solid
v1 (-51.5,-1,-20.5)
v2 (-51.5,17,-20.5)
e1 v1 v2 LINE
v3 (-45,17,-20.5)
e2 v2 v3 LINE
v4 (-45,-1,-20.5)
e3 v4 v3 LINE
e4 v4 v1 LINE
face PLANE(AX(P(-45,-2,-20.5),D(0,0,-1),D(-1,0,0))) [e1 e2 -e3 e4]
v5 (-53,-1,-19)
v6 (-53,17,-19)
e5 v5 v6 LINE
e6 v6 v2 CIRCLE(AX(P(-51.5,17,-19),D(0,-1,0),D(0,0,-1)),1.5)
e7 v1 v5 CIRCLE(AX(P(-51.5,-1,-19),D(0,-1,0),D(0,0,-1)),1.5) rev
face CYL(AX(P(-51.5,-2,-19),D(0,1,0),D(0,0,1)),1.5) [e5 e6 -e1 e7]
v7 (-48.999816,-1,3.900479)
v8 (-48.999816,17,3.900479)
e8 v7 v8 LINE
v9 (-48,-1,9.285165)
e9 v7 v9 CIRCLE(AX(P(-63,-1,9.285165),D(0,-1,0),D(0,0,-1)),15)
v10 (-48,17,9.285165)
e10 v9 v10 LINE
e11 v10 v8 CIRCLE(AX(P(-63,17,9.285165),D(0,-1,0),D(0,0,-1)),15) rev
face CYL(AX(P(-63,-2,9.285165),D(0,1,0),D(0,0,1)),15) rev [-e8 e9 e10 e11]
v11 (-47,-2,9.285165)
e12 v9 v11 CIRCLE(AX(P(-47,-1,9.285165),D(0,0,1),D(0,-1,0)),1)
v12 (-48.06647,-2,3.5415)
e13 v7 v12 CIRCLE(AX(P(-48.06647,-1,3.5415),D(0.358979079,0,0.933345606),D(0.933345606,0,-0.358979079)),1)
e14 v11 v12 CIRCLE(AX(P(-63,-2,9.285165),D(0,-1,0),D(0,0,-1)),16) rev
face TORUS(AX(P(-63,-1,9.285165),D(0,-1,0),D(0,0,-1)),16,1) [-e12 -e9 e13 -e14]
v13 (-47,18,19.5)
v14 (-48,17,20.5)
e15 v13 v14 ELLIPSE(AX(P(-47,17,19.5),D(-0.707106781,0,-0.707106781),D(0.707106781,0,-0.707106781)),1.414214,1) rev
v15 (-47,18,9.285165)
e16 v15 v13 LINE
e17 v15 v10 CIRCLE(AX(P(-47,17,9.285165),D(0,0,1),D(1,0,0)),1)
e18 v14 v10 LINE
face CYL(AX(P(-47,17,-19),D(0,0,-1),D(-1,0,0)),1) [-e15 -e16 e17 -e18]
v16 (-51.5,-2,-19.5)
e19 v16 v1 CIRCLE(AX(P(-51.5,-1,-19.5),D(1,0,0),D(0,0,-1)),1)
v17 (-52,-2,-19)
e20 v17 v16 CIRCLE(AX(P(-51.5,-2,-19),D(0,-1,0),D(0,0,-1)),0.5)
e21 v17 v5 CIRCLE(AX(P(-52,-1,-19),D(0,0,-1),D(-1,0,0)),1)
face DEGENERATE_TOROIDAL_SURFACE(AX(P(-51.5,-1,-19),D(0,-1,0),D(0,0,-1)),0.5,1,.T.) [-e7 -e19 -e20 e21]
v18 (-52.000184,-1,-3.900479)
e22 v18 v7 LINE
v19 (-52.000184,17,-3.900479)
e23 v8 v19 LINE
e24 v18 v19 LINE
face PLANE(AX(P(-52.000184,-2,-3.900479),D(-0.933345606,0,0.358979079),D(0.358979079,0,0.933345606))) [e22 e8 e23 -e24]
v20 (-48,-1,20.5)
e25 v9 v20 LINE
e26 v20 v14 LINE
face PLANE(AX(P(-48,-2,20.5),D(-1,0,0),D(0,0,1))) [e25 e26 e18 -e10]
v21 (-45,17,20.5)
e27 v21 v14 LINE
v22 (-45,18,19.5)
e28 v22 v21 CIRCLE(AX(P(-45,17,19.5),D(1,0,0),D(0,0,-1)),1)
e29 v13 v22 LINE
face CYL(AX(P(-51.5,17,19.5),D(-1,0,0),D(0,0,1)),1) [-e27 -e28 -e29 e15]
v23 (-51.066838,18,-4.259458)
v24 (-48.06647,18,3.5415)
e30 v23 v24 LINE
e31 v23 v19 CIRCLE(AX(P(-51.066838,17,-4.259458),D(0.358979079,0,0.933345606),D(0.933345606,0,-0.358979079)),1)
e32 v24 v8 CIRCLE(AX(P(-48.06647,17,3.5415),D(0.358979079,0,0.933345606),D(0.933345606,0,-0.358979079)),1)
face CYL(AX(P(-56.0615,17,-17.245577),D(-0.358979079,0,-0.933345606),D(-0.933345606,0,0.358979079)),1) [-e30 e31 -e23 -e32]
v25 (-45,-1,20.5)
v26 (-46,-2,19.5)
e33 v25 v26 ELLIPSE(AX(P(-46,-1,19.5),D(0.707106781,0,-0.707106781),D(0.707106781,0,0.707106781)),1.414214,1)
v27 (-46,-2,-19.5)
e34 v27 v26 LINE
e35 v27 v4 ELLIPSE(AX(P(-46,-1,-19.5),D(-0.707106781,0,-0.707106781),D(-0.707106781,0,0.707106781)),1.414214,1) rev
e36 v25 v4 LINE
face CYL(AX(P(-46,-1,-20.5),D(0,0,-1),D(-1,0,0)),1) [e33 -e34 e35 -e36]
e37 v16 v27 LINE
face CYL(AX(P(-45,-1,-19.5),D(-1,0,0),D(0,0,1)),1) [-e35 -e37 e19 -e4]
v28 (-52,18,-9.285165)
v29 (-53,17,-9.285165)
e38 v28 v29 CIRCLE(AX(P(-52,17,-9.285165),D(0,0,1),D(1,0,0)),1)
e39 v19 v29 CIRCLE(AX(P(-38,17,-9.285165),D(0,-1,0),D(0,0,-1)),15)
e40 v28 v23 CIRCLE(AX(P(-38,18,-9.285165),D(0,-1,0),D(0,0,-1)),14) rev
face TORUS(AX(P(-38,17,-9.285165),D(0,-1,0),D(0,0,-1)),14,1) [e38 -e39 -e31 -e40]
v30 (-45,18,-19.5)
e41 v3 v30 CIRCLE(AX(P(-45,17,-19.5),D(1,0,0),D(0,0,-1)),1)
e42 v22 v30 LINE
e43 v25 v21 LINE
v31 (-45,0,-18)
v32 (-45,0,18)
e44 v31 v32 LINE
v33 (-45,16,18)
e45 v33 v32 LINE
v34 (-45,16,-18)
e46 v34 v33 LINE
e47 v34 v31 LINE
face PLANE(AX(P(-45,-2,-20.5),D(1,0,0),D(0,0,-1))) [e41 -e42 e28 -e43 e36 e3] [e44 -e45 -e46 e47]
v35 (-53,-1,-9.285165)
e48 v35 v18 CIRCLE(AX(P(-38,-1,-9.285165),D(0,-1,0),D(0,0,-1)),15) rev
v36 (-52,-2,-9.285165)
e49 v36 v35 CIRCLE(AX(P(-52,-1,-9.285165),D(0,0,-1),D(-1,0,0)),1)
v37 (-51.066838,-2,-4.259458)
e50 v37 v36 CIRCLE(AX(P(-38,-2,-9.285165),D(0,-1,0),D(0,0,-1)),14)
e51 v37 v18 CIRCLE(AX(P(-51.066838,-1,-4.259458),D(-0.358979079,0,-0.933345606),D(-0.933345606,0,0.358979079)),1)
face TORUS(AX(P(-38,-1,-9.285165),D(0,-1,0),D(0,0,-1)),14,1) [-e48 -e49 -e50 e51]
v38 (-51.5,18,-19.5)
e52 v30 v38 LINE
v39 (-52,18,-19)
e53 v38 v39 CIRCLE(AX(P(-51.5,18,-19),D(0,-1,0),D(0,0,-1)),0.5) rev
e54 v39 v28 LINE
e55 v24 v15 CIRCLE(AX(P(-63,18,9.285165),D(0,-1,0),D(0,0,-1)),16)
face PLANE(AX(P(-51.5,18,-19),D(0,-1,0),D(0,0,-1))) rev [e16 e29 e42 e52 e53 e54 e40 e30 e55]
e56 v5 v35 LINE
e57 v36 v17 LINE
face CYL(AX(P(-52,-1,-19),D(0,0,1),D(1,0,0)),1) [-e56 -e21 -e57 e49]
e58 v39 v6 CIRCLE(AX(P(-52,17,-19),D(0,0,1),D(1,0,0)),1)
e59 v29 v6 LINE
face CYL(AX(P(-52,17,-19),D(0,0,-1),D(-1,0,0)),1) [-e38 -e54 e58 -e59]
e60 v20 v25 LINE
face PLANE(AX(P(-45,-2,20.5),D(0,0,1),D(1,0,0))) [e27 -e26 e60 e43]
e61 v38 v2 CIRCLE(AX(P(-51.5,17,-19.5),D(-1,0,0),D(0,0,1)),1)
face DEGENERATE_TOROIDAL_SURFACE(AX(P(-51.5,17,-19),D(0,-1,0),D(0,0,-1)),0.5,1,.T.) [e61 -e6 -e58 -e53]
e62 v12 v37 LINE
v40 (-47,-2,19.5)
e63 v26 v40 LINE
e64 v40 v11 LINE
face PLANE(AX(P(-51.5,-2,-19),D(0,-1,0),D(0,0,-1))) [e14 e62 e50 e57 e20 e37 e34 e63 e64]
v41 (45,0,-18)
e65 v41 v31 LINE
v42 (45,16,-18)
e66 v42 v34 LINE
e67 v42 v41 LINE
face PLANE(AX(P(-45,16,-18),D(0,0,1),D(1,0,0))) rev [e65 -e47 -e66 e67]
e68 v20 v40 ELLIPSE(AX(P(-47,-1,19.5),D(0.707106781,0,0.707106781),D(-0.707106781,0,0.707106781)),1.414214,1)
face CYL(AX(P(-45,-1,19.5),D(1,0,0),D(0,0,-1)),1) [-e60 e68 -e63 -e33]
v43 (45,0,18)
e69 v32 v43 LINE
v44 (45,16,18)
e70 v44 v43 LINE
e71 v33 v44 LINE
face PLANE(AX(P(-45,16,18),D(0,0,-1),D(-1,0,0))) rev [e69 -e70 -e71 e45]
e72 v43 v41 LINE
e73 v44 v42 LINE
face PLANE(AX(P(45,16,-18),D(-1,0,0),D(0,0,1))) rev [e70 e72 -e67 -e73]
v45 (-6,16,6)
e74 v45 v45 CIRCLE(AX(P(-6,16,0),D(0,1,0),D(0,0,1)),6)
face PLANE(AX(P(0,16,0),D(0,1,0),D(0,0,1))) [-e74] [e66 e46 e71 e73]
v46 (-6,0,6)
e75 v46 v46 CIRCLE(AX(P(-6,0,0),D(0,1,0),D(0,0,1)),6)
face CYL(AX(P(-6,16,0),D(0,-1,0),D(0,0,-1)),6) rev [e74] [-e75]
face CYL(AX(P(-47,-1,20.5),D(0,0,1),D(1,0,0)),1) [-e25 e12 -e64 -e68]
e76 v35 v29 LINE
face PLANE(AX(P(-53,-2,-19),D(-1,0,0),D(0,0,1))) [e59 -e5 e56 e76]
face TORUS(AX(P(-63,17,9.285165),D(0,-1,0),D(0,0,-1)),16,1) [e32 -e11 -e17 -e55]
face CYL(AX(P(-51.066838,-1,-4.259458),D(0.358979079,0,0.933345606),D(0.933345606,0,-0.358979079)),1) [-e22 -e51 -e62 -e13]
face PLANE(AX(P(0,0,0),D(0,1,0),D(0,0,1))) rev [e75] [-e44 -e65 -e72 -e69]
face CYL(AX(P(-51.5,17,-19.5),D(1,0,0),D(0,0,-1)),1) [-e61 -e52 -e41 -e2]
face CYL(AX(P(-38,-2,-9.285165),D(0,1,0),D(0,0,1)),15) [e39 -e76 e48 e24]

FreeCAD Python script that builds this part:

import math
import FreeCAD as App
import Part
import Sketcher

V = App.Vector
Q = App.Units.Quantity


def edges_at(feature, points):
    """Names of the edges that pass closest to the given points."""
    edges = feature.Shape.Edges
    near = lambda p: min(range(len(edges)), key=lambda i: edges[i].distToShape(Part.Vertex(*p))[0])
    return sorted({f"Edge{near(p) + 1}" for p in points})

doc = App.newDocument("Part")
params = doc.addObject("Spreadsheet::Sheet", "Params")
for row, (alias, value) in enumerate([
    ("sketch1_diameter", "12 mm"),
    ("sketch1_width", "90 mm"),
    ("sketch1_height", "36 mm"),
    ("pad1_length", "16 mm"),
    ("sketch2_radius", "15 mm"),
    ("sketch2_radius2", "1.5 mm"),
    ("sketch2_width", "3 mm"),
    ("sketch2_height", "41 mm"),
    ("sketch2_width2", "6.5 mm"),
    ("pad2_length", "20 mm"),
    ("fillet_radius", "1 mm"),
    ("fillet2_radius", "1 mm"),
], start=1):
    params.set(f"A{row}", alias)
    params.set(f"B{row}", "=" + value)
    params.setAlias(f"B{row}", alias)

body = doc.addObject("PartDesign::Body", "Body")

sketch1 = doc.addObject("Sketcher::SketchObject", "Sketch")
body.addObject(sketch1)
sketch1.AttachmentSupport = (doc.XZ_Plane, [""])
sketch1.MapMode = "FlatFace"
sketch1.addGeometry(Part.LineSegment(V(-45, -18, 0), V(-45, 18, 0)), False)
sketch1.addGeometry(Part.LineSegment(V(-45, 18, 0), V(45, 18, 0)), False)
sketch1.addGeometry(Part.LineSegment(V(45, 18, 0), V(45, -18, 0)), False)
sketch1.addGeometry(Part.LineSegment(V(45, -18, 0), V(-45, -18, 0)), False)
sketch1.addGeometry(Part.Circle(V(-6, 0, 0), V(0, 0, 1), 6), False)
sketch1.addConstraint(Sketcher.Constraint("Coincident", 0, 2, 1, 1))
sketch1.addConstraint(Sketcher.Constraint("Coincident", 1, 2, 2, 1))
sketch1.addConstraint(Sketcher.Constraint("Coincident", 2, 2, 3, 1))
sketch1.addConstraint(Sketcher.Constraint("Coincident", 3, 2, 0, 1))
sketch1.addConstraint(Sketcher.Constraint("Vertical", 0))
sketch1.addConstraint(Sketcher.Constraint("Horizontal", 1))
sketch1.addConstraint(Sketcher.Constraint("Vertical", 2))
sketch1.addConstraint(Sketcher.Constraint("Horizontal", 3))
sketch1.addConstraint(Sketcher.Constraint("Symmetric", 0, 2, 2, 2, -1, 1))
sketch1.addConstraint(Sketcher.Constraint("PointOnObject", 4, 3, -1))
sketch1.addConstraint(Sketcher.Constraint("Diameter", 4, Q("12 mm")))
sketch1.addConstraint(Sketcher.Constraint("DistanceX", 1, 1, 1, 2, Q("90 mm")))
sketch1.addConstraint(Sketcher.Constraint("DistanceY", 0, 1, 0, 2, Q("36 mm")))
sketch1.addConstraint(Sketcher.Constraint("DistanceX", 4, 3, -1, 1, Q("6 mm")))
sketch1.setExpression("Constraints[10]", "Params.sketch1_diameter")
sketch1.setExpression("Constraints[11]", "Params.sketch1_width")
sketch1.setExpression("Constraints[12]", "Params.sketch1_height")
pad1 = doc.addObject("PartDesign::Pad", "Pad")
body.addObject(pad1)
pad1.Profile = sketch1
pad1.setExpression("Length", "Params.pad1_length")
pad1.Reversed = True

sketch2 = doc.addObject("Sketcher::SketchObject", "Sketch001")
body.addObject(sketch2)
sketch2.AttachmentSupport = (doc.XZ_Plane, [""])
sketch2.MapMode = "FlatFace"
sketch2.AttachmentOffset = App.Placement(V(0, 0, -18), App.Rotation())
sketch2.addGeometry(Part.LineSegment(V(-45, 20.5, 0), V(-45, -20.5, 0)), False)
sketch2.addGeometry(Part.LineSegment(V(-45, -20.5, 0), V(-51.5, -20.5, 0)), False)
sketch2.addGeometry(Part.ArcOfCircle(Part.Circle(V(-51.5, -19, 0), V(0, 0, 1), 1.5), math.radians(180), math.radians(270)), False)
sketch2.addGeometry(Part.LineSegment(V(-53, -19, 0), V(-53, -9.3, 0)), False)
sketch2.addGeometry(Part.ArcOfCircle(Part.Circle(V(-38, -9.3, 0), V(0, 0, 1), 15), math.radians(159), math.radians(180)), False)
sketch2.addGeometry(Part.LineSegment(V(-52, -3.9, 0), V(-49, 3.9, 0)), False)
sketch2.addGeometry(Part.ArcOfCircle(Part.Circle(V(-63, 9.3, 0), V(0, 0, 1), 15), math.radians(-21), math.radians(0)), False)
sketch2.addGeometry(Part.LineSegment(V(-48, 9.3, 0), V(-48, 20.5, 0)), False)
sketch2.addGeometry(Part.LineSegment(V(-48, 20.5, 0), V(-45, 20.5, 0)), False)
sketch2.addConstraint(Sketcher.Constraint("Coincident", 0, 2, 1, 1))
sketch2.addConstraint(Sketcher.Constraint("Tangent", 1, 2, 2, 2))
sketch2.addConstraint(Sketcher.Constraint("Tangent", 2, 1, 3, 1))
sketch2.addConstraint(Sketcher.Constraint("Tangent", 3, 2, 4, 2))
sketch2.addConstraint(Sketcher.Constraint("Tangent", 4, 1, 5, 1))
sketch2.addConstraint(Sketcher.Constraint("Tangent", 5, 2, 6, 1))
sketch2.addConstraint(Sketcher.Constraint("Tangent", 6, 2, 7, 1))
sketch2.addConstraint(Sketcher.Constraint("Coincident", 7, 2, 8, 1))
sketch2.addConstraint(Sketcher.Constraint("Coincident", 8, 2, 0, 1))
sketch2.addConstraint(Sketcher.Constraint("Vertical", 0))
sketch2.addConstraint(Sketcher.Constraint("Horizontal", 1))
sketch2.addConstraint(Sketcher.Constraint("Vertical", 3))
sketch2.addConstraint(Sketcher.Constraint("Vertical", 7))
sketch2.addConstraint(Sketcher.Constraint("Horizontal", 8))
sketch2.addConstraint(Sketcher.Constraint("Equal", 4, 6))
sketch2.addConstraint(Sketcher.Constraint("Radius", 4, Q("15 mm")))
sketch2.addConstraint(Sketcher.Constraint("Radius", 2, Q("1.5 mm")))
sketch2.addConstraint(Sketcher.Constraint("DistanceX", 8, 1, 8, 2, Q("3 mm")))
sketch2.addConstraint(Sketcher.Constraint("DistanceY", 0, 2, 0, 1, Q("41 mm")))
sketch2.addConstraint(Sketcher.Constraint("DistanceX", 1, 2, 1, 1, Q("6.5 mm")))
sketch2.addConstraint(Sketcher.Constraint("DistanceY", 2, 3, -1, 1, Q("19 mm")))
sketch2.addConstraint(Sketcher.Constraint("DistanceX", 4, 3, -1, 1, Q("38 mm")))
sketch2.addConstraint(Sketcher.Constraint("Distance", 5, Q("8.358059 mm")))
sketch2.addConstraint(Sketcher.Constraint("DistanceY", 3, 1, 3, 2, Q("9.714835 mm")))
sketch2.setExpression("Constraints[15]", "Params.sketch2_radius")
sketch2.setExpression("Constraints[16]", "Params.sketch2_radius2")
sketch2.setExpression("Constraints[17]", "Params.sketch2_width")
sketch2.setExpression("Constraints[18]", "Params.sketch2_height")
sketch2.setExpression("Constraints[19]", "Params.sketch2_width2")
pad2 = doc.addObject("PartDesign::Pad", "Pad001")
body.addObject(pad2)
pad2.Profile = sketch2
pad2.setExpression("Length", "Params.pad2_length")
doc.recompute()

fillet = doc.addObject("PartDesign::Fillet", "Fillet")
body.addObject(fillet)
fillet.Base = (pad2, edges_at(pad2, [
    (-48.25, 18, -20.5),
    (-52.561, 18, -20.061),
    (-53, 18, -14.143),
    (-52.748, 18, -6.547),
    (-50.5, 18, 0),
    (-48.252, 18, 6.547),
    (-48, 18, 14.893),
    (-46.5, 18, 20.5),
]))
fillet.setExpression("Radius", "Params.fillet_radius")
doc.recompute()

fillet2 = doc.addObject("PartDesign::Fillet", "Fillet001")
body.addObject(fillet2)
fillet2.Base = (fillet, edges_at(fillet, [
    (-45, -2, 0),
    (-48.25, -2, -20.5),
    (-46.5, -2, 20.5),
    (-48, -2, 14.893),
    (-48.252, -2, 6.547),
    (-50.5, -2, 0),
    (-52.748, -2, -6.547),
    (-53, -2, -14.143),
    (-52.561, -2, -20.061),
]))
fillet2.setExpression("Radius", "Params.fillet2_radius")

doc.recompute()
